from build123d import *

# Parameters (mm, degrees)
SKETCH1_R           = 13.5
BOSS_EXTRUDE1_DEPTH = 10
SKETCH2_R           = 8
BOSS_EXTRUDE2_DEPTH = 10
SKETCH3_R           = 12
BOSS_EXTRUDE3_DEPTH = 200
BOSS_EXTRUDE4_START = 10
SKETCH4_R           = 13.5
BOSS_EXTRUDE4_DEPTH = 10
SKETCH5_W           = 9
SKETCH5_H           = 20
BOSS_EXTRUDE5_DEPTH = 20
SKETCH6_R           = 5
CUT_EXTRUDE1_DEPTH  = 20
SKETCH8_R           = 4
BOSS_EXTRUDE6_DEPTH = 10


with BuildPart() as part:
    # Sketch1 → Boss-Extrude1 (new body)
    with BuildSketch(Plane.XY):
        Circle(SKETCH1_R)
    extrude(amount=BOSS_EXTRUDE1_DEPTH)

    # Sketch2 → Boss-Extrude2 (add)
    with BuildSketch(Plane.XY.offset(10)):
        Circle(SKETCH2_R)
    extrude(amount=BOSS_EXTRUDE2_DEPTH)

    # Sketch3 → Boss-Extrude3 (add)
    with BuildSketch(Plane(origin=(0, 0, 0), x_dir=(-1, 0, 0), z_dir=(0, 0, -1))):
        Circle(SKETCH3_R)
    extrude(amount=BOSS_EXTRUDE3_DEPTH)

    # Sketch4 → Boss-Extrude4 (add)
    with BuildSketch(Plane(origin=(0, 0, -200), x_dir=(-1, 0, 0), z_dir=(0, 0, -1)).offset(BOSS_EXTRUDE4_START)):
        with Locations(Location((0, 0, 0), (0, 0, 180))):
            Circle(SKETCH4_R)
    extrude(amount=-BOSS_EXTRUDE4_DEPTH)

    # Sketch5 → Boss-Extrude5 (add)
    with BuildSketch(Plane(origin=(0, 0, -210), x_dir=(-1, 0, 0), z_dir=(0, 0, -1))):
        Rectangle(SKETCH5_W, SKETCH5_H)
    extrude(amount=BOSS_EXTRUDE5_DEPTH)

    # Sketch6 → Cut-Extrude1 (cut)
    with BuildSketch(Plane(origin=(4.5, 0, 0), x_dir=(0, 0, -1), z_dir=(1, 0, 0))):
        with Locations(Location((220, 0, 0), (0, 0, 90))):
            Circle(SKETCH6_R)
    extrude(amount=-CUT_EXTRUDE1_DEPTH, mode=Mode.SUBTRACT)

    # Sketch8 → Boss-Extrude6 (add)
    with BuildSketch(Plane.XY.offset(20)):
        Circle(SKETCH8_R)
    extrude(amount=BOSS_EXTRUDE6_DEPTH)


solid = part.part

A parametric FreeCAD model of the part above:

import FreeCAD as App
import Part
import Sketcher
from FreeCAD import Vector

doc = App.newDocument("Part")
body = doc.addObject("PartDesign::Body", "Body")

# Sketch on XY plane
sketch1 = doc.addObject("Sketcher::SketchObject", "Sketch")
body.addObject(sketch1)
sketch1.AttachmentSupport = (doc.XY_Plane, [""])
sketch1.MapMode = "FlatFace"
sketch1.addGeometry(Part.Circle(Vector(0, 0, 0), Vector(0, 0, 1), 14), False)
sketch1.addConstraint([
    Sketcher.Constraint("Coincident", 0, 3, -1, 1),
    Sketcher.Constraint("Diameter", 0, 27.0),
])
pad1 = doc.addObject("PartDesign::Pad", "Pad")
body.addObject(pad1)
pad1.Profile = sketch1
pad1.Length = 10

# Sketch on XY plane
sketch2 = doc.addObject("Sketcher::SketchObject", "Sketch001")
body.addObject(sketch2)
sketch2.AttachmentSupport = (doc.XY_Plane, [""])
sketch2.MapMode = "FlatFace"
sketch2.AttachmentOffset = App.Placement(Vector(0, 0, 10), App.Rotation())
sketch2.addGeometry(Part.Circle(Vector(0, 0, 0), Vector(0, 0, 1), 8), False)
sketch2.addConstraint([
    Sketcher.Constraint("Coincident", 0, 3, -1, 1),
    Sketcher.Constraint("Diameter", 0, 16.0),
])
pad2 = doc.addObject("PartDesign::Pad", "Pad001")
body.addObject(pad2)
pad2.Profile = sketch2
pad2.Length = 10

# Sketch on XY plane
sketch3 = doc.addObject("Sketcher::SketchObject", "Sketch002")
body.addObject(sketch3)
sketch3.AttachmentSupport = (doc.XY_Plane, [""])
sketch3.MapMode = "FlatFace"
sketch3.addGeometry(Part.Circle(Vector(0, 0, 0), Vector(0, 0, 1), 12), False)
sketch3.addConstraint([
    Sketcher.Constraint("Coincident", 0, 3, -1, 1),
    Sketcher.Constraint("Diameter", 0, 24.0),
])
pad3 = doc.addObject("PartDesign::Pad", "Pad002")
body.addObject(pad3)
pad3.Profile = sketch3
pad3.Length = 200
pad3.Reversed = True

# Sketch on XY plane
sketch4 = doc.addObject("Sketcher::SketchObject", "Sketch003")
body.addObject(sketch4)
sketch4.AttachmentSupport = (doc.XY_Plane, [""])
sketch4.MapMode = "FlatFace"
sketch4.AttachmentOffset = App.Placement(Vector(0, 0, -210), App.Rotation())
sketch4.addGeometry(Part.Circle(Vector(0, 0, 0), Vector(0, 0, 1), 14), False)
sketch4.addConstraint([
    Sketcher.Constraint("Coincident", 0, 3, -1, 1),
    Sketcher.Constraint("Diameter", 0, 27.0),
])
pad4 = doc.addObject("PartDesign::Pad", "Pad003")
body.addObject(pad4)
pad4.Profile = sketch4
pad4.Length = 10

# Sketch on XY plane
sketch5 = doc.addObject("Sketcher::SketchObject", "Sketch004")
body.addObject(sketch5)
sketch5.AttachmentSupport = (doc.XY_Plane, [""])
sketch5.MapMode = "FlatFace"
sketch5.AttachmentOffset = App.Placement(Vector(0, 0, -210), App.Rotation())
sketch5.addGeometry([
    Part.LineSegment(Vector(4, 10, 0), Vector(4, -10, 0)),
    Part.LineSegment(Vector(4, -10, 0), Vector(-4, -10, 0)),
    Part.LineSegment(Vector(-4, -10, 0), Vector(-4, 10, 0)),
    Part.LineSegment(Vector(-4, 10, 0), Vector(4, 10, 0)),
], False)
sketch5.addConstraint([
    Sketcher.Constraint("Coincident", 0, 2, 1, 1),
    Sketcher.Constraint("Coincident", 1, 2, 2, 1),
    Sketcher.Constraint("Coincident", 2, 2, 3, 1),
    Sketcher.Constraint("Coincident", 3, 2, 0, 1),
    Sketcher.Constraint("Vertical", 0),
    Sketcher.Constraint("Horizontal", 1),
    Sketcher.Constraint("Vertical", 2),
    Sketcher.Constraint("Horizontal", 3),
    Sketcher.Constraint("Symmetric", 0, 2, 2, 2, -1, 1),
    Sketcher.Constraint("DistanceX", 1, 2, 1, 1, 9.0),
    Sketcher.Constraint("DistanceY", 0, 2, 0, 1, 20.0),
])
pad5 = doc.addObject("PartDesign::Pad", "Pad004")
body.addObject(pad5)
pad5.Profile = sketch5
pad5.Length = 20
pad5.Reversed = True

# Sketch on YZ plane
sketch6 = doc.addObject("Sketcher::SketchObject", "Sketch005")
body.addObject(sketch6)
sketch6.AttachmentSupport = (doc.YZ_Plane, [""])
sketch6.MapMode = "FlatFace"
sketch6.AttachmentOffset = App.Placement(Vector(0, 0, 4.5), App.Rotation())
sketch6.addGeometry(Part.Circle(Vector(0, -220, 0), Vector(0, 0, 1), 5), False)
sketch6.addConstraint([
    Sketcher.Constraint("PointOnObject", 0, 3, -2),
    Sketcher.Constraint("Diameter", 0, 10.0),
    Sketcher.Constraint("DistanceY", 0, 3, -1, 1, 220.0),
])
pocket1 = doc.addObject("PartDesign::Pocket", "Pocket")
body.addObject(pocket1)
pocket1.Profile = sketch6
pocket1.Length = 20

# Sketch on XY plane
sketch7 = doc.addObject("Sketcher::SketchObject", "Sketch006")
body.addObject(sketch7)
sketch7.AttachmentSupport = (doc.XY_Plane, [""])
sketch7.MapMode = "FlatFace"
sketch7.AttachmentOffset = App.Placement(Vector(0, 0, 20), App.Rotation())
sketch7.addGeometry(Part.Circle(Vector(0, 0, 0), Vector(0, 0, 1), 4), False)
sketch7.addConstraint([
    Sketcher.Constraint("Coincident", 0, 3, -1, 1),
    Sketcher.Constraint("Diameter", 0, 8.0),
])
pad6 = doc.addObject("PartDesign::Pad", "Pad005")
body.addObject(pad6)
pad6.Profile = sketch7
pad6.Length = 10

doc.recompute()
